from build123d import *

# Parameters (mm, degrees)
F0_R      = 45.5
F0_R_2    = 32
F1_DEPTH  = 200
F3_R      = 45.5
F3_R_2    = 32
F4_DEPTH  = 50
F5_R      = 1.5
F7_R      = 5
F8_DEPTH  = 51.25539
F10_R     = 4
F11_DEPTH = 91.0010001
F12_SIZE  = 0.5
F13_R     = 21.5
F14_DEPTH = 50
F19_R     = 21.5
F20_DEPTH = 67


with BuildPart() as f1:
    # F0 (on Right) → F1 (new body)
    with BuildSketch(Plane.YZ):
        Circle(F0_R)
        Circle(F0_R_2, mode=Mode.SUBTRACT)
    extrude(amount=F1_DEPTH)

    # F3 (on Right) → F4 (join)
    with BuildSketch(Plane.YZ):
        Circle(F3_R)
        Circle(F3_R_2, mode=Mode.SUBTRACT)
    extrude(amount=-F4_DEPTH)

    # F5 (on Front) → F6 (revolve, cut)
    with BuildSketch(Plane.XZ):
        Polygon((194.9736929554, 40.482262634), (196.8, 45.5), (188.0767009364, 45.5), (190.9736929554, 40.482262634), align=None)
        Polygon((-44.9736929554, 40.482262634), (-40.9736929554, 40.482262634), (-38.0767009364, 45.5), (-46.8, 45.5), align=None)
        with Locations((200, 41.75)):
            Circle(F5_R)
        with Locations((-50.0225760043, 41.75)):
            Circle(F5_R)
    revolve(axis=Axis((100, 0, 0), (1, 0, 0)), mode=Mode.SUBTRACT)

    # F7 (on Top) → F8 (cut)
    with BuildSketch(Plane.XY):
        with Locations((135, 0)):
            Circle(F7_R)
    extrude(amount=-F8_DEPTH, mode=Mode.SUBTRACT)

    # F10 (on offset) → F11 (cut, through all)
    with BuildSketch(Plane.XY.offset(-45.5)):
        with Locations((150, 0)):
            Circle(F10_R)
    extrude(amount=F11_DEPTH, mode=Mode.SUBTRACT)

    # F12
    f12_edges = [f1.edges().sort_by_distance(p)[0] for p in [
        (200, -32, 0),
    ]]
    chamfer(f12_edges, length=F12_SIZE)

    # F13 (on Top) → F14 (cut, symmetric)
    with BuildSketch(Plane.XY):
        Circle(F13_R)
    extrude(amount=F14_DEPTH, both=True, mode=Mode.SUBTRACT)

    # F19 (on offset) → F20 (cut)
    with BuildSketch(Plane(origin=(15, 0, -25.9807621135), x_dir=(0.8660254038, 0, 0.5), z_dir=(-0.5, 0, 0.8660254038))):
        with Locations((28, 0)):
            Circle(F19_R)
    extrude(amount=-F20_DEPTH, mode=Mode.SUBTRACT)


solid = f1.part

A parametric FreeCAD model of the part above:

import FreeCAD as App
import Part
import Sketcher
from FreeCAD import Vector
Q = App.Units.Quantity


def edges_at(feature, points):
    """Names of the edges that pass closest to the given points."""
    edges = feature.Shape.Edges
    near = lambda p: min(range(len(edges)), key=lambda i: edges[i].distToShape(Part.Vertex(*p))[0])
    return sorted({f"Edge{near(p) + 1}" for p in points})

doc = App.newDocument("Part")
params = doc.addObject("Spreadsheet::Sheet", "Params")
for row, (alias, value) in enumerate([
    ("sketch1_diameter", "91 mm"),
    ("sketch1_diameter2", "64 mm"),
    ("pad1_length", "200 mm"),
    ("sketch2_diameter", "91 mm"),
    ("sketch2_diameter2", "64 mm"),
    ("pad2_length", "50 mm"),
    ("sketch3_diameter", "3 mm"),
    ("sketch3_width", "4 mm"),
    ("groove_angle", "360 deg"),
    ("sketch4_diameter", "10 mm"),
    ("pocket1_length", "51.25539 mm"),
    ("sketch5_diameter", "8 mm"),
    ("chamfer_size", "0.5 mm"),
    ("sketch6_diameter", "43 mm"),
    ("pocket3_length", "100 mm"),
    ("sketch7_diameter", "43 mm"),
    ("pocket4_length", "67 mm"),
], start=1):
    params.set(f"A{row}", alias)
    params.set(f"B{row}", "=" + value)
    params.setAlias(f"B{row}", alias)

body = doc.addObject("PartDesign::Body", "Body")

# Sketch on YZ plane
sketch1 = body.newObject("Sketcher::SketchObject", "Sketch")
sketch1.AttachmentSupport = (doc.getObject("YZ_Plane"), [""])
sketch1.MapMode = "FlatFace"
sketch1.addGeometry(Part.Circle(Vector(0, 0, 0), Vector(0, 0, 1), 46), False)
sketch1.addGeometry(Part.Circle(Vector(0, 0, 0), Vector(0, 0, 1), 32), False)
sketch1.addConstraint(Sketcher.Constraint("Coincident", 0, 3, -1, 1))
sketch1.addConstraint(Sketcher.Constraint("Coincident", 1, 3, -1, 1))
sketch1.addConstraint(Sketcher.Constraint("Diameter", 0, Q("91 mm")))
sketch1.addConstraint(Sketcher.Constraint("Diameter", 1, Q("64 mm")))
sketch1.setExpression("Constraints[2]", "Params.sketch1_diameter")
sketch1.setExpression("Constraints[3]", "Params.sketch1_diameter2")
pad1 = body.newObject("PartDesign::Pad", "Pad")
pad1.Profile = sketch1
pad1.setExpression("Length", "Params.pad1_length")

# Sketch on YZ plane
sketch2 = body.newObject("Sketcher::SketchObject", "Sketch001")
sketch2.AttachmentSupport = (doc.getObject("YZ_Plane"), [""])
sketch2.MapMode = "FlatFace"
sketch2.addGeometry(Part.Circle(Vector(0, 0, 0), Vector(0, 0, 1), 46), False)
sketch2.addGeometry(Part.Circle(Vector(0, 0, 0), Vector(0, 0, 1), 32), False)
sketch2.addConstraint(Sketcher.Constraint("Coincident", 0, 3, -1, 1))
sketch2.addConstraint(Sketcher.Constraint("Coincident", 1, 3, -1, 1))
sketch2.addConstraint(Sketcher.Constraint("Diameter", 0, Q("91 mm")))
sketch2.addConstraint(Sketcher.Constraint("Diameter", 1, Q("64 mm")))
sketch2.setExpression("Constraints[2]", "Params.sketch2_diameter")
sketch2.setExpression("Constraints[3]", "Params.sketch2_diameter2")
pad2 = body.newObject("PartDesign::Pad", "Pad001")
pad2.Profile = sketch2
pad2.setExpression("Length", "Params.pad2_length")
pad2.Reversed = True

# Sketch on XZ plane
sketch3 = body.newObject("Sketcher::SketchObject", "Sketch002")
sketch3.AttachmentSupport = (doc.getObject("XZ_Plane"), [""])
sketch3.MapMode = "FlatFace"
sketch3.addGeometry(Part.LineSegment(Vector(195, 40.5, 0), Vector(196.8, 45.5, 0)), False)
sketch3.addGeometry(Part.LineSegment(Vector(196.8, 45.5, 0), Vector(188.1, 45.5, 0)), False)
sketch3.addGeometry(Part.LineSegment(Vector(188.1, 45.5, 0), Vector(191, 40.5, 0)), False)
sketch3.addGeometry(Part.LineSegment(Vector(191, 40.5, 0), Vector(195, 40.5, 0)), False)
sketch3.addGeometry(Part.LineSegment(Vector(-45, 40.5, 0), Vector(-41, 40.5, 0)), False)
sketch3.addGeometry(Part.LineSegment(Vector(-41, 40.5, 0), Vector(-38.1, 45.5, 0)), False)
sketch3.addGeometry(Part.LineSegment(Vector(-38.1, 45.5, 0), Vector(-46.8, 45.5, 0)), False)
sketch3.addGeometry(Part.LineSegment(Vector(-46.8, 45.5, 0), Vector(-45, 40.5, 0)), False)
sketch3.addGeometry(Part.Circle(Vector(200, 41.8, 0), Vector(0, 0, 1), 1.5), False)
sketch3.addGeometry(Part.Circle(Vector(-50, 41.8, 0), Vector(0, 0, 1), 1.5), False)
sketch3.addConstraint(Sketcher.Constraint("Coincident", 0, 2, 1, 1))
sketch3.addConstraint(Sketcher.Constraint("Coincident", 1, 2, 2, 1))
sketch3.addConstraint(Sketcher.Constraint("Coincident", 2, 2, 3, 1))
sketch3.addConstraint(Sketcher.Constraint("Coincident", 3, 2, 0, 1))
sketch3.addConstraint(Sketcher.Constraint("Coincident", 4, 2, 5, 1))
sketch3.addConstraint(Sketcher.Constraint("Coincident", 5, 2, 6, 1))
sketch3.addConstraint(Sketcher.Constraint("Coincident", 6, 2, 7, 1))
sketch3.addConstraint(Sketcher.Constraint("Coincident", 7, 2, 4, 1))
sketch3.addConstraint(Sketcher.Constraint("Horizontal", 1))
sketch3.addConstraint(Sketcher.Constraint("Horizontal", 3))
sketch3.addConstraint(Sketcher.Constraint("Horizontal", 4))
sketch3.addConstraint(Sketcher.Constraint("Horizontal", 6))
sketch3.addConstraint(Sketcher.Constraint("Equal", 8, 9))
sketch3.addConstraint(Sketcher.Constraint("Horizontal", 8, 3, 9, 3))
sketch3.addConstraint(Sketcher.Constraint("Horizontal", 3, 2, 4, 2))
sketch3.addConstraint(Sketcher.Constraint("Horizontal", 1, 2, 5, 2))
sketch3.addConstraint(Sketcher.Constraint("Equal", 3, 4))
sketch3.addConstraint(Sketcher.Constraint("Equal", 1, 6))
sketch3.addConstraint(Sketcher.Constraint("Equal", 2, 5))
sketch3.addConstraint(Sketcher.Constraint("Diameter", 8, Q("3 mm")))
sketch3.addConstraint(Sketcher.Constraint("DistanceX", 3, 1, 3, 2, Q("4 mm")))
sketch3.addConstraint(Sketcher.Constraint("Angle", 0, Q("70 deg")))
sketch3.addConstraint(Sketcher.Constraint("Angle", 2, Q("-60 deg")))
sketch3.addConstraint(Sketcher.Constraint("DistanceX", -1, 1, 8, 3, Q("200 mm")))
sketch3.addConstraint(Sketcher.Constraint("DistanceX", -1, 1, 0, 2, Q("196.8 mm")))
sketch3.addConstraint(Sketcher.Constraint("DistanceY", -1, 1, 0, 2, Q("45.5 mm")))
sketch3.addConstraint(Sketcher.Constraint("DistanceX", 6, 2, -1, 1, Q("46.8 mm")))
sketch3.addConstraint(Sketcher.Constraint("DistanceY", -1, 1, 8, 3, Q("41.75 mm")))
sketch3.addConstraint(Sketcher.Constraint("DistanceX", 1, 2, 1, 1, Q("8.723299 mm")))
sketch3.addConstraint(Sketcher.Constraint("DistanceX", 9, 3, 2, 2, Q("240.996269 mm")))
sketch3.setExpression("Constraints[19]", "Params.sketch3_diameter")
sketch3.setExpression("Constraints[20]", "Params.sketch3_width")
groove = body.newObject("PartDesign::Groove", "Groove")
groove.Profile = sketch3
groove.ReferenceAxis = (sketch3, ["H_Axis"])
groove.setExpression("Angle", "Params.groove_angle")

# Sketch on XY plane
sketch4 = body.newObject("Sketcher::SketchObject", "Sketch003")
sketch4.AttachmentSupport = (doc.getObject("XY_Plane"), [""])
sketch4.MapMode = "FlatFace"
sketch4.addGeometry(Part.Circle(Vector(135, 0, 0), Vector(0, 0, 1), 5), False)
sketch4.addConstraint(Sketcher.Constraint("PointOnObject", 0, 3, -1))
sketch4.addConstraint(Sketcher.Constraint("Diameter", 0, Q("10 mm")))
sketch4.addConstraint(Sketcher.Constraint("DistanceX", -1, 1, 0, 3, Q("135 mm")))
sketch4.setExpression("Constraints[1]", "Params.sketch4_diameter")
pocket1 = body.newObject("PartDesign::Pocket", "Pocket")
pocket1.Profile = sketch4
pocket1.setExpression("Length", "Params.pocket1_length")

# Sketch on XY plane
sketch5 = body.newObject("Sketcher::SketchObject", "Sketch004")
sketch5.AttachmentSupport = (doc.getObject("XY_Plane"), [""])
sketch5.MapMode = "FlatFace"
sketch5.AttachmentOffset = App.Placement(Vector(0, 0, -45.5), App.Rotation())
sketch5.addGeometry(Part.Circle(Vector(150, 0, 0), Vector(0, 0, 1), 4), False)
sketch5.addConstraint(Sketcher.Constraint("PointOnObject", 0, 3, -1))
sketch5.addConstraint(Sketcher.Constraint("Diameter", 0, Q("8 mm")))
sketch5.addConstraint(Sketcher.Constraint("DistanceX", -1, 1, 0, 3, Q("150 mm")))
sketch5.setExpression("Constraints[1]", "Params.sketch5_diameter")
pocket2 = body.newObject("PartDesign::Pocket", "Pocket001")
pocket2.Profile = sketch5
pocket2.Type = "ThroughAll"
pocket2.Reversed = True
doc.recompute()

chamfer = body.newObject("PartDesign::Chamfer", "Chamfer")
chamfer.Base = (pocket2, edges_at(pocket2, [(200, -32, 0)]))
chamfer.setExpression("Size", "Params.chamfer_size")

# Sketch on XY plane
sketch6 = body.newObject("Sketcher::SketchObject", "Sketch005")
sketch6.AttachmentSupport = (doc.getObject("XY_Plane"), [""])
sketch6.MapMode = "FlatFace"
sketch6.addGeometry(Part.Circle(Vector(0, 0, 0), Vector(0, 0, 1), 22), False)
sketch6.addConstraint(Sketcher.Constraint("Coincident", 0, 3, -1, 1))
sketch6.addConstraint(Sketcher.Constraint("Diameter", 0, Q("43 mm")))
sketch6.setExpression("Constraints[1]", "Params.sketch6_diameter")
pocket3 = body.newObject("PartDesign::Pocket", "Pocket002")
pocket3.Profile = sketch6
pocket3.setExpression("Length", "Params.pocket3_length")
pocket3.Midplane = True

# Sketch on an angled plane
sketch7 = body.newObject("Sketcher::SketchObject", "Sketch006")
sketch7.Placement = App.Placement(Vector(15, 0, -25.980762), App.Rotation(Vector(0.866025404, 0, 0.5), Vector(0, 1, 0), Vector(-0.5, 0, 0.866025404), "ZXY"))
sketch7.addGeometry(Part.Circle(Vector(28, 0, 0), Vector(0, 0, 1), 22), False)
sketch7.addConstraint(Sketcher.Constraint("PointOnObject", 0, 3, -1))
sketch7.addConstraint(Sketcher.Constraint("Diameter", 0, Q("43 mm")))
sketch7.addConstraint(Sketcher.Constraint("DistanceX", -1, 1, 0, 3, Q("28 mm")))
sketch7.setExpression("Constraints[1]", "Params.sketch7_diameter")
pocket4 = body.newObject("PartDesign::Pocket", "Pocket003")
pocket4.Profile = sketch7
pocket4.setExpression("Length", "Params.pocket4_length")

doc.recompute()
